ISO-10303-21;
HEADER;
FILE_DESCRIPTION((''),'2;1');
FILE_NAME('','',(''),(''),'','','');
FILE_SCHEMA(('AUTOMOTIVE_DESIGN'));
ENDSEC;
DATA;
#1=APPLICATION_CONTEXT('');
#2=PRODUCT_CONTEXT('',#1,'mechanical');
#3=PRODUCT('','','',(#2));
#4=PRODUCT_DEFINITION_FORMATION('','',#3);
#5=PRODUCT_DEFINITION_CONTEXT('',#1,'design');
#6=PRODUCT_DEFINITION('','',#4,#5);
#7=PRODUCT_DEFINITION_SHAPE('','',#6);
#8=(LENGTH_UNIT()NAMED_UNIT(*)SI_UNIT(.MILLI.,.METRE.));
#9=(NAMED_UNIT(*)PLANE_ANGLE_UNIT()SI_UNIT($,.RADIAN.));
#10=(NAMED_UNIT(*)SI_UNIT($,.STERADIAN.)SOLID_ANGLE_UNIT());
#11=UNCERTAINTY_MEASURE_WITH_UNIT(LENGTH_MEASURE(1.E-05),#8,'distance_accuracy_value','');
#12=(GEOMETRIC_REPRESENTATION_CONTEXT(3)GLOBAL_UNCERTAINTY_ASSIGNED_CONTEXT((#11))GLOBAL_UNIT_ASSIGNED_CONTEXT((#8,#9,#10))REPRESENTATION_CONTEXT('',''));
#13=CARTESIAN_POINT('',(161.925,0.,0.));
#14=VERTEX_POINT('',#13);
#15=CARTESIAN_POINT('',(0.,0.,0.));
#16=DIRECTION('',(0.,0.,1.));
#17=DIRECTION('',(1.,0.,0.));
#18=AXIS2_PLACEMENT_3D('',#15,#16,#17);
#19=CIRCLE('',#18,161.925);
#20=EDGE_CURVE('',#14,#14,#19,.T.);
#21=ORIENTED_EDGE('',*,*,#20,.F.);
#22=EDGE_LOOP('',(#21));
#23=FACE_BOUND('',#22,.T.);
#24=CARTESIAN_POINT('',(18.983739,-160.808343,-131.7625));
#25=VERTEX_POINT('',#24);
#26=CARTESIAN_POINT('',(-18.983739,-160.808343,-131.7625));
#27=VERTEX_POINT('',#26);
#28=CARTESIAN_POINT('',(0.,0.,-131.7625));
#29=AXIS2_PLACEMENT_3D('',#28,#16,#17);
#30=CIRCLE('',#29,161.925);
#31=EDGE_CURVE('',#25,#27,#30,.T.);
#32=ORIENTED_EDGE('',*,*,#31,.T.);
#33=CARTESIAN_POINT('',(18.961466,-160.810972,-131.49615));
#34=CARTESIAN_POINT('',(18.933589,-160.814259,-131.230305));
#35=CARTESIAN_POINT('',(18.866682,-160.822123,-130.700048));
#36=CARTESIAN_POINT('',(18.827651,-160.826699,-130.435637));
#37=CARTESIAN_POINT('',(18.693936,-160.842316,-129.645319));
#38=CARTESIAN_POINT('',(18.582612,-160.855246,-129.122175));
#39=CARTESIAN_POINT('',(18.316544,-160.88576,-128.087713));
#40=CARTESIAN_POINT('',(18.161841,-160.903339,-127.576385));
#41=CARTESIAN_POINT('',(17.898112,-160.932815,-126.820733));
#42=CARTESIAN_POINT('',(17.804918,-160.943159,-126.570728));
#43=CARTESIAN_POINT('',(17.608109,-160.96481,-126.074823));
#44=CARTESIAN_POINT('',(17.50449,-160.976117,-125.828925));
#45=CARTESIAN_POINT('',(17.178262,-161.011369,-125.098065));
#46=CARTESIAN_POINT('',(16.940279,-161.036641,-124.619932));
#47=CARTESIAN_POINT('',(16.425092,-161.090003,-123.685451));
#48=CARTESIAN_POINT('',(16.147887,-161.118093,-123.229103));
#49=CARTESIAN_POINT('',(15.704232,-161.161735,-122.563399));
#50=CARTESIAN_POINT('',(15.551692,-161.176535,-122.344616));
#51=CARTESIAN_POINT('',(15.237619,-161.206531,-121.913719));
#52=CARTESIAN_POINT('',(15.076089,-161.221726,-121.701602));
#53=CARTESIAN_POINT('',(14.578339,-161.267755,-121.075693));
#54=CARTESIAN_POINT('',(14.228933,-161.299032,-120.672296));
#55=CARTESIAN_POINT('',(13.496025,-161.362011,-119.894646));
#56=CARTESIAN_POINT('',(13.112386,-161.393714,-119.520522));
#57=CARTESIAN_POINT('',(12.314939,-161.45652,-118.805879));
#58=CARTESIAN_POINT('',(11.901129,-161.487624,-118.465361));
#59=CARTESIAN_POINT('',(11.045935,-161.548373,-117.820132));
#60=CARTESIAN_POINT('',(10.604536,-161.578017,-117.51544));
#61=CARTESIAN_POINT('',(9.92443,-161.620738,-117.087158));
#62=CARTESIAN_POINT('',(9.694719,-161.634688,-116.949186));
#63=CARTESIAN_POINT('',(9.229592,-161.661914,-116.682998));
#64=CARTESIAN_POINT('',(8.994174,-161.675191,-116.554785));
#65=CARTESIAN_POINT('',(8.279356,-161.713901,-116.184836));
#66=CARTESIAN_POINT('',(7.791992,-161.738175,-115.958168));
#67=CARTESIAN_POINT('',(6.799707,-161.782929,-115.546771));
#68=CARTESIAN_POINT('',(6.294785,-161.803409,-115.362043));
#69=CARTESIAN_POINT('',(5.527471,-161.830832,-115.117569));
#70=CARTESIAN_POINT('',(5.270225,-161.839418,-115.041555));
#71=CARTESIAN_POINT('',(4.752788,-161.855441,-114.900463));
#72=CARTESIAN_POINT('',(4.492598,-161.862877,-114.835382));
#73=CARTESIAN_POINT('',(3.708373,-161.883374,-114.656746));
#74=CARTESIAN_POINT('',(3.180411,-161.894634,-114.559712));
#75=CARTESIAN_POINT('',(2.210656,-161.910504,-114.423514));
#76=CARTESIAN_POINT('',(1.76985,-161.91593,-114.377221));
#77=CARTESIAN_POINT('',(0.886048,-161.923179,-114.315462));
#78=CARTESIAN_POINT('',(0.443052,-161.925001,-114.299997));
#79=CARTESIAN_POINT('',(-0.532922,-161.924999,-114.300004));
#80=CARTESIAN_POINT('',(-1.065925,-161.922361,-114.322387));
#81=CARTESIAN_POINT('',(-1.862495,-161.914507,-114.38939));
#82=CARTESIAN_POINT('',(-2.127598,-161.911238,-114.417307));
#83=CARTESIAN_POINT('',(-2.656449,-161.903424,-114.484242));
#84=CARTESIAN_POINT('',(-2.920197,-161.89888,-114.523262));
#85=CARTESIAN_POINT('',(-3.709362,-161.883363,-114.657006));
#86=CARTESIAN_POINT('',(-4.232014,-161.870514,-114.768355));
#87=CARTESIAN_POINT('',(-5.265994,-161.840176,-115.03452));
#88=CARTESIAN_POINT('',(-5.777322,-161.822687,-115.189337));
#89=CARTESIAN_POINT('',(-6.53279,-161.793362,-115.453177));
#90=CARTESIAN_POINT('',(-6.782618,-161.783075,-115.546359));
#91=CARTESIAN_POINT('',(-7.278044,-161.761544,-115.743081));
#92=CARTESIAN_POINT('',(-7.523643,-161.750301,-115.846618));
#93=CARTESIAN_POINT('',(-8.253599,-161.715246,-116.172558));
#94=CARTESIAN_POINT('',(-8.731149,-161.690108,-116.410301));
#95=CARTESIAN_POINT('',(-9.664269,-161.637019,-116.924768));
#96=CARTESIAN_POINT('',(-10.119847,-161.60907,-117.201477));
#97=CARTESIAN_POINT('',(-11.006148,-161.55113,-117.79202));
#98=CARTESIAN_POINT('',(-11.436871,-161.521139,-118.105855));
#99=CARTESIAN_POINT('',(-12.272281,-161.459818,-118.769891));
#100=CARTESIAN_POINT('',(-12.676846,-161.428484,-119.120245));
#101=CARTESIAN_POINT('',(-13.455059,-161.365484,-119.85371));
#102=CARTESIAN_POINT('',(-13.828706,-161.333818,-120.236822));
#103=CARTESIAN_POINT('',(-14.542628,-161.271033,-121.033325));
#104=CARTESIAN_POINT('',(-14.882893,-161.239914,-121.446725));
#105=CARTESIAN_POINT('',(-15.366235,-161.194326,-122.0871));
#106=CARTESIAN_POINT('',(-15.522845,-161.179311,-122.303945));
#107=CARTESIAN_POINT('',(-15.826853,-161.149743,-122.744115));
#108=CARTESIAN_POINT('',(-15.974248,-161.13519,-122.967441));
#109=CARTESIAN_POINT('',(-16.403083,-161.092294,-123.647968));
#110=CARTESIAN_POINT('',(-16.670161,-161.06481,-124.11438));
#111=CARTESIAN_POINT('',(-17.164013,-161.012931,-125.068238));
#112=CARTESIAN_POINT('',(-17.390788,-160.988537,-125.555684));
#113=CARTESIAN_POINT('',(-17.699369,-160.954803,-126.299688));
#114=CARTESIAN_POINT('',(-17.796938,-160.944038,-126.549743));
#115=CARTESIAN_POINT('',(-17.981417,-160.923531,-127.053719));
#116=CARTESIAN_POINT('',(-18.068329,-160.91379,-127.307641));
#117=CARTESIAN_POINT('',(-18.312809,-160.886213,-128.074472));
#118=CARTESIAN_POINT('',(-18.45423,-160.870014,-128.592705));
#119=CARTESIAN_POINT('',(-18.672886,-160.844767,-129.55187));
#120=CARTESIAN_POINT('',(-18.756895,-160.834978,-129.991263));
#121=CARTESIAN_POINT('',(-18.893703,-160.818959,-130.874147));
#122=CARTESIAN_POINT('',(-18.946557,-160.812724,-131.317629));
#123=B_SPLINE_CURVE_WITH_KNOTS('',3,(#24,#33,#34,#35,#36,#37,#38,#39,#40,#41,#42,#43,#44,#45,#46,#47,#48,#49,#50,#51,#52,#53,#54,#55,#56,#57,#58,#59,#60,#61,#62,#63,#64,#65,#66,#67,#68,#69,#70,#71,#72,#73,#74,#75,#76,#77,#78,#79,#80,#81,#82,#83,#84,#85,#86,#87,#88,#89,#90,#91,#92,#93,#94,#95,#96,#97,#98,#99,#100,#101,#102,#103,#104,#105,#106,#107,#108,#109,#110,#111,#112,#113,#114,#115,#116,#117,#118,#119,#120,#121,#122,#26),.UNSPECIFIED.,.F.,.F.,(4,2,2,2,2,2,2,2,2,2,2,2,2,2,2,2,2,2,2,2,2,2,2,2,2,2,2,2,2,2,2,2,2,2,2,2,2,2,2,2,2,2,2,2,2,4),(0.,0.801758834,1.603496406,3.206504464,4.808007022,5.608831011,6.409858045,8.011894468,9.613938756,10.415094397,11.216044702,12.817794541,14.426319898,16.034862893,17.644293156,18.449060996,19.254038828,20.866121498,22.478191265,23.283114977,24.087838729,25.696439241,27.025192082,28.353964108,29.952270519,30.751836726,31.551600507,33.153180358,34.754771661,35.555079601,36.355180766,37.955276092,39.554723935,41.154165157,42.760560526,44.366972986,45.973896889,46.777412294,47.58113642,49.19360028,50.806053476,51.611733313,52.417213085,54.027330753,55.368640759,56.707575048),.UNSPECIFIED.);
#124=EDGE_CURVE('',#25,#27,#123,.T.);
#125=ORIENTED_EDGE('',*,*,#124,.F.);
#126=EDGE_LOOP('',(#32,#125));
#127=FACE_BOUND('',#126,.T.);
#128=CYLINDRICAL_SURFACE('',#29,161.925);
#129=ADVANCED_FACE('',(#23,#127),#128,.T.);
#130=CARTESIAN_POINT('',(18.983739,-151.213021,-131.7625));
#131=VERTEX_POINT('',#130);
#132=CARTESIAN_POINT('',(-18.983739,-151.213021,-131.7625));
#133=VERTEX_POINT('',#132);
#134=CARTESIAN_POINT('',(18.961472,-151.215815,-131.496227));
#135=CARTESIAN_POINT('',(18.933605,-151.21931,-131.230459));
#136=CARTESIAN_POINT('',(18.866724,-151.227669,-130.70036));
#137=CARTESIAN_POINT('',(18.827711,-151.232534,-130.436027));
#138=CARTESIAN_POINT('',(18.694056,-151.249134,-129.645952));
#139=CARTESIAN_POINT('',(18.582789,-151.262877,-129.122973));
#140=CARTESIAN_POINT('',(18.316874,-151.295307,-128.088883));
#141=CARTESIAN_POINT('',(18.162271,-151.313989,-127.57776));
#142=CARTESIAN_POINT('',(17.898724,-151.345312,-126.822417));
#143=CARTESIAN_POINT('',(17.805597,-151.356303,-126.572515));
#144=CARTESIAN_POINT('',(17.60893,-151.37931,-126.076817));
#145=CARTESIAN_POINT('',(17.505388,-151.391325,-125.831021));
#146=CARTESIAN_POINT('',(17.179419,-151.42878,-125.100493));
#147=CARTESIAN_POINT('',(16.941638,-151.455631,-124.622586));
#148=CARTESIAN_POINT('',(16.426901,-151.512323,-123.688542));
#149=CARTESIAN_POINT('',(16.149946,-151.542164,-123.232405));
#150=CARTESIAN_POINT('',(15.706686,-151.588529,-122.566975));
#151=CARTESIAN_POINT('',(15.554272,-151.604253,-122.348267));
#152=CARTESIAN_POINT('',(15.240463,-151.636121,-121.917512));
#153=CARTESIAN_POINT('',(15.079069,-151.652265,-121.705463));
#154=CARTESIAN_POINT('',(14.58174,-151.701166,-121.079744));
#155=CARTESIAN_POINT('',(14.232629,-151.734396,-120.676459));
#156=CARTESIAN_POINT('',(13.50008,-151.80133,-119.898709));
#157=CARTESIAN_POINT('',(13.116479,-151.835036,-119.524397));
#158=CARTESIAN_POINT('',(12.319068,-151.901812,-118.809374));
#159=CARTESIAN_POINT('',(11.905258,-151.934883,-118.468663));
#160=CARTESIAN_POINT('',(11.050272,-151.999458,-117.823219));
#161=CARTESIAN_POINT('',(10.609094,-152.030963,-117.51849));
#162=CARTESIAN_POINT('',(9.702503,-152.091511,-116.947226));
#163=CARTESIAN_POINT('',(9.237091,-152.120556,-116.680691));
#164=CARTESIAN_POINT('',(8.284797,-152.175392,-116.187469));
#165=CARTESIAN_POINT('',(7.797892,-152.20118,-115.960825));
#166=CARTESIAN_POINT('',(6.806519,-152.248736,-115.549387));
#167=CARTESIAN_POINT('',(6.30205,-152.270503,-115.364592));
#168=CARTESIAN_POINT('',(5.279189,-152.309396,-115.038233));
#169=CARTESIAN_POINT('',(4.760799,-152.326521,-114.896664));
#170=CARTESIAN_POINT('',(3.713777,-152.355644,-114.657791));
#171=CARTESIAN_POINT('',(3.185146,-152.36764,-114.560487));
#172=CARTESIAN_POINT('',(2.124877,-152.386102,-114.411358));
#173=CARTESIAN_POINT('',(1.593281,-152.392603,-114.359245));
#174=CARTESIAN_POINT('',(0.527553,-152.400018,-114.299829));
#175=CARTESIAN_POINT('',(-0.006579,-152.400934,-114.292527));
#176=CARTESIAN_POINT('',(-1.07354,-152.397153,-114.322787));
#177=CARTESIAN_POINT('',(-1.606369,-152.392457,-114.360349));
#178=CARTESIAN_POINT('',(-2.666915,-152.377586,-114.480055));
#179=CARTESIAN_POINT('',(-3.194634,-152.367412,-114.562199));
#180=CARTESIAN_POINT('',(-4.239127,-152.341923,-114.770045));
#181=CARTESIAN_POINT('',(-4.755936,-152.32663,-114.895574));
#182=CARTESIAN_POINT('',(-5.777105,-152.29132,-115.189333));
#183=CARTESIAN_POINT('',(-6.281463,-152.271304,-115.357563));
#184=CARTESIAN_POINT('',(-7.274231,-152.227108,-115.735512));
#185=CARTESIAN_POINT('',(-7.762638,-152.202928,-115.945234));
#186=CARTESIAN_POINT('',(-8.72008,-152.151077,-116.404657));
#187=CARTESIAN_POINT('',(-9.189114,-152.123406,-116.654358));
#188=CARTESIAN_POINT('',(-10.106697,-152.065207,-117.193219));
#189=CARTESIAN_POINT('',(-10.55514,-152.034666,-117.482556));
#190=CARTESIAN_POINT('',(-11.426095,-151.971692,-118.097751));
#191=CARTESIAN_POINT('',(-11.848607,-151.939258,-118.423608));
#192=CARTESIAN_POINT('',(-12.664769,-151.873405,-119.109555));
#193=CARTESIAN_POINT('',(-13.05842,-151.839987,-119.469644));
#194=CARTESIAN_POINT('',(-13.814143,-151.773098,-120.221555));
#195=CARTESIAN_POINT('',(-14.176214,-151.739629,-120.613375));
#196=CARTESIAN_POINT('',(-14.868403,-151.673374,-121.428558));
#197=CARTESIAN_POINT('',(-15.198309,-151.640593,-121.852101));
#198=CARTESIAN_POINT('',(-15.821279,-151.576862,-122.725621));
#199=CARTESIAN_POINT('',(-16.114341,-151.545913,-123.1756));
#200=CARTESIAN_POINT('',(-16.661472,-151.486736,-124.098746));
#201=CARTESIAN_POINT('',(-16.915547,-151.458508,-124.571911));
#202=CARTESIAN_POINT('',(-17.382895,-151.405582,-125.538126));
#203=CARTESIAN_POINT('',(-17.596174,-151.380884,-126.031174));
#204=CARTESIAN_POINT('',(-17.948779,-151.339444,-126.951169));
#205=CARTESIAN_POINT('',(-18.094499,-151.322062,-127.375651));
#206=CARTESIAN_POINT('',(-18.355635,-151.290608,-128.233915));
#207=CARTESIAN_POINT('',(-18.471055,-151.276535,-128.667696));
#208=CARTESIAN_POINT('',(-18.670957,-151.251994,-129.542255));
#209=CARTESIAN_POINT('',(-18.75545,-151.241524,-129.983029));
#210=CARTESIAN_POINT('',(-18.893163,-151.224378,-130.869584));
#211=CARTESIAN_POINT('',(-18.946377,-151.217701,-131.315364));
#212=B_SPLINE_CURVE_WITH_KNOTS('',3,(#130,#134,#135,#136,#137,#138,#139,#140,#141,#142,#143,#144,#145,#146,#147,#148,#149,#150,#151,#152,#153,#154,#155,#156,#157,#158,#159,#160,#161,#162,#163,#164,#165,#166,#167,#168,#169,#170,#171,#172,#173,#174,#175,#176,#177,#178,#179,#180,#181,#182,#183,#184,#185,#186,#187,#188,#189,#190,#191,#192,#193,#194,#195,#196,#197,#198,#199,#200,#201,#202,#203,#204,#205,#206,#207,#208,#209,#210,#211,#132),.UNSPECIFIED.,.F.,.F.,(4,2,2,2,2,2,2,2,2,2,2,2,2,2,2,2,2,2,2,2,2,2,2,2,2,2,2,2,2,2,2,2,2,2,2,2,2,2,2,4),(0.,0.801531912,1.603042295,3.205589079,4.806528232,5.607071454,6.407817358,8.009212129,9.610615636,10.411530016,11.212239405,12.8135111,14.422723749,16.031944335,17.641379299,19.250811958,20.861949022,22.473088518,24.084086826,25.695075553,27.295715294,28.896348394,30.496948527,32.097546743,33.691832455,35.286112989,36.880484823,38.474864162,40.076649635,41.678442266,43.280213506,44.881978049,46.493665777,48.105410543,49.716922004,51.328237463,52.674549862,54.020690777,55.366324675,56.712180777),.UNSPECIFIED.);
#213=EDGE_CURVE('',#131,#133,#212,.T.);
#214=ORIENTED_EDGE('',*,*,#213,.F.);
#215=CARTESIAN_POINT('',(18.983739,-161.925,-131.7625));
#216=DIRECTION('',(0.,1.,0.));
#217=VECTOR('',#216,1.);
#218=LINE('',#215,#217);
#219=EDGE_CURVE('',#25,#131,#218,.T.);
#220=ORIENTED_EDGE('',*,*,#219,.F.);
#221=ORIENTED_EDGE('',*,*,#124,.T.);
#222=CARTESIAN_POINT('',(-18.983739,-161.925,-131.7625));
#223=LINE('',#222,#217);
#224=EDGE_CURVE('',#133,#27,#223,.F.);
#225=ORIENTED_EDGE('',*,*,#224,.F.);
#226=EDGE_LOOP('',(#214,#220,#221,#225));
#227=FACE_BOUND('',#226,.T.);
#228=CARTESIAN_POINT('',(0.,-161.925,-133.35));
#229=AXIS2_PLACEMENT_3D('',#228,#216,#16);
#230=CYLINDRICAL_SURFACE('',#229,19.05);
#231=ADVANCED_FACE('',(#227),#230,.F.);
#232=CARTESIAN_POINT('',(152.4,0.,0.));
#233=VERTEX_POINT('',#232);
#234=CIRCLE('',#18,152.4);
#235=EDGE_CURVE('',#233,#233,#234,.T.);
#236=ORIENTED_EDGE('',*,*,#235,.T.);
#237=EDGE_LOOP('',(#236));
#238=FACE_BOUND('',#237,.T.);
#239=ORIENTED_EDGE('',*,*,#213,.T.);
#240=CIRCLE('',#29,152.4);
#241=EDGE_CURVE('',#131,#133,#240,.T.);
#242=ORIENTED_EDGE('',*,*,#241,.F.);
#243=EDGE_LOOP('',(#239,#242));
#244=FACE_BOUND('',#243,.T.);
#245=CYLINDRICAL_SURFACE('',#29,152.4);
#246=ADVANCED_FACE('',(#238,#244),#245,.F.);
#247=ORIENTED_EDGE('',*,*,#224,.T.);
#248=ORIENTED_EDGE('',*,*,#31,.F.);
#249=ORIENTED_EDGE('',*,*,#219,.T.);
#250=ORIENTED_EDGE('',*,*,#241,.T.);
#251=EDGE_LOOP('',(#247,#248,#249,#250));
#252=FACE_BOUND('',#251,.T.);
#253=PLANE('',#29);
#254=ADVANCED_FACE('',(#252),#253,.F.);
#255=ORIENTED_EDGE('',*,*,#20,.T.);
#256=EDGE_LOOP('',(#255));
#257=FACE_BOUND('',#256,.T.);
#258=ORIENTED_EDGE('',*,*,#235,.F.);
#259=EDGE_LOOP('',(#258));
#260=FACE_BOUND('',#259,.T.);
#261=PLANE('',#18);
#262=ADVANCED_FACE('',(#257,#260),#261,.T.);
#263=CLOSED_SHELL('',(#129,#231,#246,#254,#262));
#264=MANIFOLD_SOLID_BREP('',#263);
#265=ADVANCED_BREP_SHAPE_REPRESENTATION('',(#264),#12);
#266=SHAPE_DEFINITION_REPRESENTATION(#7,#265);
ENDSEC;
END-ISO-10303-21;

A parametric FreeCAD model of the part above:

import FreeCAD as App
import Part
import Sketcher
from FreeCAD import Vector
Q = App.Units.Quantity

doc = App.newDocument("Part")
body = doc.addObject("PartDesign::Body", "Body")

# Sketch on XY plane
sketch1 = body.newObject("Sketcher::SketchObject", "Sketch")
sketch1.AttachmentSupport = (doc.getObject("XY_Plane"), [""])
sketch1.MapMode = "FlatFace"
sketch1.addGeometry(Part.Circle(Vector(0, 0, 0), Vector(0, 0, 1), 162), False)
sketch1.addGeometry(Part.Circle(Vector(0, 0, 0), Vector(0, 0, 1), 152), False)
sketch1.addConstraint(Sketcher.Constraint("Coincident", 0, 3, -1, 1))
sketch1.addConstraint(Sketcher.Constraint("Coincident", 1, 3, -1, 1))
sketch1.addConstraint(Sketcher.Constraint("Diameter", 1, Q("12 in")))
sketch1.addConstraint(Sketcher.Constraint("Diameter", 0, Q("12.75 in")))
pad1 = body.newObject("PartDesign::Pad", "Pad")
pad1.Profile = sketch1
pad1.Length = Q("5.1875 in")
pad1.Reversed = True

# Sketch on XZ plane
sketch2 = body.newObject("Sketcher::SketchObject", "Sketch001")
sketch2.AttachmentSupport = (doc.getObject("XZ_Plane"), [""])
sketch2.MapMode = "FlatFace"
sketch2.addGeometry(Part.Circle(Vector(0, -133, 0), Vector(0, 0, 1), 19), False)
sketch2.addConstraint(Sketcher.Constraint("PointOnObject", 0, 3, -2))
sketch2.addConstraint(Sketcher.Constraint("Diameter", 0, Q("1.5 in")))
sketch2.addConstraint(Sketcher.Constraint("DistanceY", 0, 3, -1, 1, Q("5.25 in")))
pocket1 = body.newObject("PartDesign::Pocket", "Pocket")
pocket1.Profile = sketch2
pocket1.Type = "ThroughAll"
pocket1.Reversed = True

doc.recompute()
